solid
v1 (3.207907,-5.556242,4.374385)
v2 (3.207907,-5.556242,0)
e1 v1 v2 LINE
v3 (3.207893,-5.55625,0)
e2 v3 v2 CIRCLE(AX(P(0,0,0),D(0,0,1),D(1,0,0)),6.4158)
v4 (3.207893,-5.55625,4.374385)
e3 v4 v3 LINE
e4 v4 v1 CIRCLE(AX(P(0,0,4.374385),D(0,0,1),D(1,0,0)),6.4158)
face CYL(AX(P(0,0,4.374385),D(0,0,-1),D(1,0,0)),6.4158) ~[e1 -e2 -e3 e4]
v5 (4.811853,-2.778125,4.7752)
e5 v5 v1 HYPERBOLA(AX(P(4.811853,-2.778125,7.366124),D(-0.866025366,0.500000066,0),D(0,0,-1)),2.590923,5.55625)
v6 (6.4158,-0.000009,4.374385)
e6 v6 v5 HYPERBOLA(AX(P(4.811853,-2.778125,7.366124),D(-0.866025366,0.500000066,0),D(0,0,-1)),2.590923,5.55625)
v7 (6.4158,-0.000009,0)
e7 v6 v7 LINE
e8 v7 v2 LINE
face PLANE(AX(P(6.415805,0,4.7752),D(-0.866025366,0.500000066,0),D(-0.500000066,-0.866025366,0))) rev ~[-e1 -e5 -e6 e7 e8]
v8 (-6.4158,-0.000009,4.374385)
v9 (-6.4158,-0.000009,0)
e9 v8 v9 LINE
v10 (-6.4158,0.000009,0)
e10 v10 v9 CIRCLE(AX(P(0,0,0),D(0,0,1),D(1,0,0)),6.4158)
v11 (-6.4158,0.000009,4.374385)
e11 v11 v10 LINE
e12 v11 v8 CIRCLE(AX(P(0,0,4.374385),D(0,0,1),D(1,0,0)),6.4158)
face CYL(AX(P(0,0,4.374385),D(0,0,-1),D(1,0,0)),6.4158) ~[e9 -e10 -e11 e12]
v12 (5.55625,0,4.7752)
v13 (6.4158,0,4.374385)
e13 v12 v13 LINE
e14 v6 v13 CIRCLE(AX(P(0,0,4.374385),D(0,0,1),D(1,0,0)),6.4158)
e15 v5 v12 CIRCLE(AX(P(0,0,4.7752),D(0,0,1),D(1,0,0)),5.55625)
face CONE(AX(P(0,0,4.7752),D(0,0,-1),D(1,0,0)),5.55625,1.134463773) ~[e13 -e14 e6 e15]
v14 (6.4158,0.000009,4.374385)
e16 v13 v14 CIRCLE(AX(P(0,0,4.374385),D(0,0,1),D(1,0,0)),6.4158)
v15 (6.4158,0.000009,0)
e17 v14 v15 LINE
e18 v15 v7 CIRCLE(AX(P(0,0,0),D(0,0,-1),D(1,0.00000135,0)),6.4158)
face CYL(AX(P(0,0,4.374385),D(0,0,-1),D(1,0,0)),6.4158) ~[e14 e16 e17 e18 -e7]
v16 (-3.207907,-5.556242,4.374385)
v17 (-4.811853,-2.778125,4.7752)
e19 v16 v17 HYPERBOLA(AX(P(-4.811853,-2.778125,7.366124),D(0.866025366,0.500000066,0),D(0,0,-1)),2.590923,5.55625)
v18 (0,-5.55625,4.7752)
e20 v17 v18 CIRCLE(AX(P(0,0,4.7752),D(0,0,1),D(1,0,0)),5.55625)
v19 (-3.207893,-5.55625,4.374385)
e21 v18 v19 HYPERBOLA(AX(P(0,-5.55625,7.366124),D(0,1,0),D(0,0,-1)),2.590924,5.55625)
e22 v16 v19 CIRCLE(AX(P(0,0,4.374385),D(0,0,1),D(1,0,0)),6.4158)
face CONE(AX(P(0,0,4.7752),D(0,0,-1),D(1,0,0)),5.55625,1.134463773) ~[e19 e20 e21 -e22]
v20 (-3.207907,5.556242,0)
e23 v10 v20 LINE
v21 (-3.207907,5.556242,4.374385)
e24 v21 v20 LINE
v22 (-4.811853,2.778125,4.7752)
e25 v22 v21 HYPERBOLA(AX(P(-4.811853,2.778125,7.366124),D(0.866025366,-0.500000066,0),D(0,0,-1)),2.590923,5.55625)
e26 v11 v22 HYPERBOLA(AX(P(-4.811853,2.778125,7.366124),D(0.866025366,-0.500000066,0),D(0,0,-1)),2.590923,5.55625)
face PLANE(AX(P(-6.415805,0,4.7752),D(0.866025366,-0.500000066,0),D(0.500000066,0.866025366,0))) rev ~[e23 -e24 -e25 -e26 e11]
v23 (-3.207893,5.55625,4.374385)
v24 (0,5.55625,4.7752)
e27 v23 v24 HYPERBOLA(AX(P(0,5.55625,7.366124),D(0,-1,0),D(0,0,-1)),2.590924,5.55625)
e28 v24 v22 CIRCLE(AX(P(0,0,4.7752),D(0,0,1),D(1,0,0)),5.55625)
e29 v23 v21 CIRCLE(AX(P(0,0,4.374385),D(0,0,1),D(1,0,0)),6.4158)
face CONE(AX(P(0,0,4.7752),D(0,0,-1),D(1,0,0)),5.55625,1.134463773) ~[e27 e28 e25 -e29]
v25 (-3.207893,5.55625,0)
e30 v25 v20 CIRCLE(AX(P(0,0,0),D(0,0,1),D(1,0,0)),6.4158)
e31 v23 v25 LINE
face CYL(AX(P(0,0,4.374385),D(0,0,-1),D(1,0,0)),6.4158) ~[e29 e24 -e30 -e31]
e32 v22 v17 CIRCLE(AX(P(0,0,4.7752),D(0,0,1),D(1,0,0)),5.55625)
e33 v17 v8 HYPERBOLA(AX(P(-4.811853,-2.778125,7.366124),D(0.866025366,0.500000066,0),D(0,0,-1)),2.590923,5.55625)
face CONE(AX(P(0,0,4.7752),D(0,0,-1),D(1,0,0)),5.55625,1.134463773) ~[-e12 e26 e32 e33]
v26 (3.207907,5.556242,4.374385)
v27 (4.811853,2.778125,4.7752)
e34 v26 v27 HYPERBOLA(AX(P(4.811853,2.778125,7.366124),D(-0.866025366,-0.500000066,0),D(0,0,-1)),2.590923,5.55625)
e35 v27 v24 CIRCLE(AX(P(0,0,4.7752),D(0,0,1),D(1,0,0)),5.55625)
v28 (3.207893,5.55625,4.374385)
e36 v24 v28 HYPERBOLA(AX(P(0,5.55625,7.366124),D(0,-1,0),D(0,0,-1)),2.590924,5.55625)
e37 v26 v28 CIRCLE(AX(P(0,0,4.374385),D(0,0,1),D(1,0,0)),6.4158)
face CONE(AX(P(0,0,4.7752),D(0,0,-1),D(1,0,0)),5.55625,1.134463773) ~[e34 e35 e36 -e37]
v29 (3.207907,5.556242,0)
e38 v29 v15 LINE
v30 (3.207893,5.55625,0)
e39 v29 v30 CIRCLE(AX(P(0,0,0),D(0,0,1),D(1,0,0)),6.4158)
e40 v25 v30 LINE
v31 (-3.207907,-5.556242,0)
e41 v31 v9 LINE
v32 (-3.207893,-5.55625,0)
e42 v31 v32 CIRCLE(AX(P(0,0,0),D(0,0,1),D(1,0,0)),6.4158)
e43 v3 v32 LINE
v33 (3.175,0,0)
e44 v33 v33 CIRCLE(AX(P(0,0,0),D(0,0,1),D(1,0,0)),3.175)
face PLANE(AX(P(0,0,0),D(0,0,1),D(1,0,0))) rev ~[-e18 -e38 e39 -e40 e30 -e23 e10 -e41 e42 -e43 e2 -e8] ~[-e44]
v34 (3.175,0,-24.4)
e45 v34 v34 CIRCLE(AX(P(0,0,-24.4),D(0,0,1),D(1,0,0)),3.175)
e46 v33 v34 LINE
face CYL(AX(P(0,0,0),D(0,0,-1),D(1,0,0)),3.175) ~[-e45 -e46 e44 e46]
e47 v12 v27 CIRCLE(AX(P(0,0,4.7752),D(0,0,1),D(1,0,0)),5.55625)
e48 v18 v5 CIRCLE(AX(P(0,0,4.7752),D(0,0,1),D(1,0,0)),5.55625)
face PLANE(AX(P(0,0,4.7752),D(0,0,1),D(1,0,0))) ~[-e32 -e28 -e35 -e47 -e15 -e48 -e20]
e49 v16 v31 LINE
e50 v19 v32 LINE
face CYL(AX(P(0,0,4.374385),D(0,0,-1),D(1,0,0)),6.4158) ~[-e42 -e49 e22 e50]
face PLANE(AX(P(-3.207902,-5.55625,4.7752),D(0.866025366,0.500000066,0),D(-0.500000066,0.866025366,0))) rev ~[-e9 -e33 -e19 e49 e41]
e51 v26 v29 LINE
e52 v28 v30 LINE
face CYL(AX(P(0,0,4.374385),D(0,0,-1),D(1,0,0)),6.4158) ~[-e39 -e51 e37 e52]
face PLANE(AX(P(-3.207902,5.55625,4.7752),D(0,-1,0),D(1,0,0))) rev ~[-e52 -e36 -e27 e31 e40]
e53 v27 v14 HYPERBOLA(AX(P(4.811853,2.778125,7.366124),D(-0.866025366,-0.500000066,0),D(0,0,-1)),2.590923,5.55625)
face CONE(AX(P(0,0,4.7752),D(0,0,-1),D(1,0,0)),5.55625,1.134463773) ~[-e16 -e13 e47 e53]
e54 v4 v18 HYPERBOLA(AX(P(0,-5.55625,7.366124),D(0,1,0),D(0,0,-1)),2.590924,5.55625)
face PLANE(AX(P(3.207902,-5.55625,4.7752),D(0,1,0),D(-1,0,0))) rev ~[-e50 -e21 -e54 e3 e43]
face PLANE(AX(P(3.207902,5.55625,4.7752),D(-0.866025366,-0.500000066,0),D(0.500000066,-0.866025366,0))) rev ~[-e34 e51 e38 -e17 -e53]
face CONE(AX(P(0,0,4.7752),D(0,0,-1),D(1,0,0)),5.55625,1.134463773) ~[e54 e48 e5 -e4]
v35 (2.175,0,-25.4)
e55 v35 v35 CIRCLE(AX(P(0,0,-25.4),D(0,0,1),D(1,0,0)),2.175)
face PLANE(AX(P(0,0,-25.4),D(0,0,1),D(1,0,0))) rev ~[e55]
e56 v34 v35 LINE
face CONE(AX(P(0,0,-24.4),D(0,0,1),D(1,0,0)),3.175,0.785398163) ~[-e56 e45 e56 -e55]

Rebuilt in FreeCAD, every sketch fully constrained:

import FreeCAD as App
import Part
import Sketcher

V = App.Vector
Q = App.Units.Quantity


def edges_at(feature, points):
    """Names of the edges that pass closest to the given points."""
    edges = feature.Shape.Edges
    near = lambda p: min(range(len(edges)), key=lambda i: edges[i].distToShape(Part.Vertex(*p))[0])
    return sorted({f"Edge{near(p) + 1}" for p in points})


def add_polygon(sketch, points):
    """Adds a closed chain of lines whose ends are joined by coincident constraints."""
    first, n = sketch.GeometryCount, len(points)
    for a, b in zip(points, points[1:] + points[:1]):
        sketch.addGeometry(Part.LineSegment(App.Vector(*a, 0), App.Vector(*b, 0)), False)
    for i in range(n):
        sketch.addConstraint(Sketcher.Constraint("Coincident", first + i, 2, first + (i + 1) % n, 1))

doc = App.newDocument("Part")
body = doc.addObject("PartDesign::Body", "Body")

# Sketch on XZ plane
sketch1 = doc.addObject("Sketcher::SketchObject", "Sketch")
body.addObject(sketch1)
sketch1.AttachmentSupport = (doc.XZ_Plane, [""])
sketch1.MapMode = "FlatFace"
add_polygon(sketch1, [(5.6, 4.8), (0, 4.8), (0, -25.4), (3.2, -25.4), (3.2, 0), (6.4, 0), (6.4, 4.4)])  # lines 0-6
sketch1.addConstraint([
    Sketcher.Constraint("Horizontal", 0),
    Sketcher.Constraint("Vertical", 1),
    Sketcher.Constraint("Horizontal", 2),
    Sketcher.Constraint("Vertical", 3),
    Sketcher.Constraint("Horizontal", 4),
    Sketcher.Constraint("Vertical", 5),
    Sketcher.Constraint("PointOnObject", 0, 2, -2),
    Sketcher.Constraint("PointOnObject", 3, 2, -1),
    Sketcher.Constraint("DistanceY", 3, 1, 3, 2, Q("1 in")),
    Sketcher.Constraint("Angle", 6, Q("154.999986 deg")),
    Sketcher.Constraint("DistanceX", 0, 2, 0, 1, Q("0.21875 in")),
    Sketcher.Constraint("DistanceX", 2, 1, 2, 2, Q("0.125 in")),
    Sketcher.Constraint("DistanceY", 1, 2, 1, 1, Q("1.188 in")),
    Sketcher.Constraint("DistanceX", 4, 1, 4, 2, 3.2408),
])
revolution = doc.addObject("PartDesign::Revolution", "Revolution")
body.addObject(revolution)
revolution.Profile = sketch1
revolution.ReferenceAxis = (sketch1, ["V_Axis"])
revolution.Angle = 360

# Sketch on XY plane
sketch2 = doc.addObject("Sketcher::SketchObject", "Sketch001")
body.addObject(sketch2)
sketch2.AttachmentSupport = (doc.XY_Plane, [""])
sketch2.MapMode = "FlatFace"
sketch2.AttachmentOffset = App.Placement(V(0, 0, 0.188 * 25.4), App.Rotation())
sketch2.addGeometry(Part.Circle(V(0, 0, 0), V(0, 0, 1), 7), False)  # 0
add_polygon(sketch2, [(6, 0), (3, -6), (-3, -6), (-6, 0), (-3, 6), (3, 6)])  # lines 1-6
sketch2.addConstraint([
    Sketcher.Constraint("Horizontal", 2),
    Sketcher.Constraint("Horizontal", 5),
    Sketcher.Constraint("Coincident", 0, 3, -1, 1),
    Sketcher.Constraint("Symmetric", 1, 2, 4, 2, -1, 1),
    Sketcher.Constraint("Symmetric", 3, 2, 6, 2, -1, 1),
    Sketcher.Constraint("PointOnObject", 3, 2, -1),
    Sketcher.Constraint("Parallel", 3, 6),
    Sketcher.Constraint("Vertical", 2, 2, 4, 2),
    Sketcher.Constraint("Angle", 1, Q("-120.000004 deg")),
    Sketcher.Constraint("Diameter", 0, 14.83161),
    Sketcher.Constraint("DistanceY", 1, 2, -1, 1, Q("0.21875 in")),
    Sketcher.Constraint("DistanceX", -1, 1, 1, 2, 3.207902),
])
pocket1 = doc.addObject("PartDesign::Pocket", "Pocket")
body.addObject(pocket1)
pocket1.Profile = sketch2
pocket1.Type = "ThroughAll"
doc.recompute()

chamfer = doc.addObject("PartDesign::Chamfer", "Chamfer")
body.addObject(chamfer)
chamfer.Base = (pocket1, edges_at(pocket1, [(-3.175, 0, -25.4)]))
chamfer.Size = 1

doc.recompute()
